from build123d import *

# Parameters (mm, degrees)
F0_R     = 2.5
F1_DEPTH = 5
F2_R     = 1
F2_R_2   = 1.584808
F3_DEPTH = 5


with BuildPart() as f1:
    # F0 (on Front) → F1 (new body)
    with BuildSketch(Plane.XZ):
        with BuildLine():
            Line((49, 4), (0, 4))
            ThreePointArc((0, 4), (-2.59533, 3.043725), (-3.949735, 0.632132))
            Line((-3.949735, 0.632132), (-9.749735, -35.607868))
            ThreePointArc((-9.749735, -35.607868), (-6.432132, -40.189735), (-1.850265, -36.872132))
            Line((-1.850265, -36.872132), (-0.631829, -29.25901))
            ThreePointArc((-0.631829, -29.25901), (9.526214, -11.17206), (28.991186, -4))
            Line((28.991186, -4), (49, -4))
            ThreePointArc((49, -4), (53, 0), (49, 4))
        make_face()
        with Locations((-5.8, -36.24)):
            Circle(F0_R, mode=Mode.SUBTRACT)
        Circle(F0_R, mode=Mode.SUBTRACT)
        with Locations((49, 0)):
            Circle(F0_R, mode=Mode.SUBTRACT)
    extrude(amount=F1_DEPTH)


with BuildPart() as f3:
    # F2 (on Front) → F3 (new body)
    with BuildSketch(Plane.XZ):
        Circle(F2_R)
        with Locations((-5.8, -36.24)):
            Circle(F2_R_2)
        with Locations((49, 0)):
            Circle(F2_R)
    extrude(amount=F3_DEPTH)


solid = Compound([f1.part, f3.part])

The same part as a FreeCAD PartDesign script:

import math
import FreeCAD as App
import Part
import Sketcher
from FreeCAD import Vector

doc = App.newDocument("Part")
body = doc.addObject("PartDesign::Body", "Body")

# Sketch on XZ plane
sketch1 = body.newObject("Sketcher::SketchObject", "Sketch")
sketch1.AttachmentSupport = (doc.getObject("XZ_Plane"), [""])
sketch1.MapMode = "FlatFace"
sketch1.addGeometry([
    Part.LineSegment(Vector(49, 4, 0), Vector(0, 4, 0)),  # 0
    Part.ArcOfCircle(Part.Circle(Vector(0, 0, 0), Vector(0, 0, 1), 4), math.radians(90), math.radians(171)),  # 1
    Part.LineSegment(Vector(-3.9, 0.6, 0), Vector(-9.7, -35.6, 0)),  # 2
    Part.ArcOfCircle(Part.Circle(Vector(-5.8, -36.2, 0), Vector(0, 0, 1), 4), math.radians(171), math.radians(351)),  # 3
    Part.LineSegment(Vector(-1.9, -36.9, 0), Vector(-0.6, -29.3, 0)),  # 4
    Part.ArcOfCircle(Part.Circle(Vector(29, -34, 0), Vector(0, 0, 1), 30), math.radians(90), math.radians(171)),  # 5
    Part.LineSegment(Vector(29, -4, 0), Vector(49, -4, 0)),  # 6
    Part.ArcOfCircle(Part.Circle(Vector(49, 0, 0), Vector(0, 0, 1), 4), math.radians(-90), math.radians(90)),  # 7
    Part.Circle(Vector(-5.8, -36.2, 0), Vector(0, 0, 1), 2.5),  # 8
    Part.Circle(Vector(0, 0, 0), Vector(0, 0, 1), 2.5),  # 9
    Part.Circle(Vector(49, 0, 0), Vector(0, 0, 1), 2.5),  # 10
], False)
sketch1.addConstraint([
    Sketcher.Constraint("Tangent", 0, 2, 1, 1),
    Sketcher.Constraint("Tangent", 1, 2, 2, 1),
    Sketcher.Constraint("Tangent", 2, 2, 3, 1),
    Sketcher.Constraint("Tangent", 3, 2, 4, 1),
    Sketcher.Constraint("Tangent", 4, 2, 5, 2),
    Sketcher.Constraint("Tangent", 5, 1, 6, 1),
    Sketcher.Constraint("Tangent", 6, 2, 7, 1),
    Sketcher.Constraint("Tangent", 7, 2, 0, 1),
    Sketcher.Constraint("Horizontal", 0),
    Sketcher.Constraint("Horizontal", 6),
    Sketcher.Constraint("Coincident", 1, 3, -1, 1),
    Sketcher.Constraint("Coincident", 9, 3, -1, 1),
    Sketcher.Constraint("Coincident", 8, 3, 3, 3),
    Sketcher.Constraint("Coincident", 10, 3, 7, 3),
    Sketcher.Constraint("Equal", 1, 3),
    Sketcher.Constraint("Equal", 3, 7),
    Sketcher.Constraint("Equal", 8, 9),
    Sketcher.Constraint("Equal", 9, 10),
    Sketcher.Constraint("Parallel", 2, 4),
    Sketcher.Constraint("Diameter", 8, 5.0),
    Sketcher.Constraint("Radius", 1, 3.999999),
    Sketcher.Constraint("Radius", 5, 30.000001),
    Sketcher.Constraint("DistanceX", 0, 2, 0, 1, 49.0),
    Sketcher.Constraint("DistanceX", 3, 3, -1, 1, 5.8),
    Sketcher.Constraint("DistanceY", 3, 3, -1, 1, 36.24),
])
pad1 = body.newObject("PartDesign::Pad", "Pad")
pad1.Profile = sketch1
pad1.Length = 5
body2 = doc.addObject("PartDesign::Body", "Body001")
body2.AllowCompound = True

# Sketch on XZ plane
sketch2 = body2.newObject("Sketcher::SketchObject", "Sketch001")
sketch2.AttachmentSupport = (doc.getObject("XZ_Plane001"), [""])
sketch2.MapMode = "FlatFace"
sketch2.addGeometry([
    Part.Circle(Vector(0, 0, 0), Vector(0, 0, 1), 1),
    Part.Circle(Vector(-5.8, -36.2, 0), Vector(0, 0, 1), 1.6),
    Part.Circle(Vector(49, 0, 0), Vector(0, 0, 1), 1),
], False)
sketch2.addConstraint([
    Sketcher.Constraint("Coincident", 0, 3, -1, 1),
    Sketcher.Constraint("Equal", 0, 2),
    Sketcher.Constraint("PointOnObject", 2, 3, -1),
    Sketcher.Constraint("Diameter", 0, 2.0),
    Sketcher.Constraint("DistanceX", -1, 1, 2, 3, 49.0),
    Sketcher.Constraint("DistanceX", 1, 3, -1, 1, 5.8),
    Sketcher.Constraint("DistanceY", 1, 3, -1, 1, 36.24),
    Sketcher.Constraint("Diameter", 1, 3.169616),
])
pad2 = body2.newObject("PartDesign::Pad", "Pad001")
pad2.Profile = sketch2
pad2.Length = 5

doc.recompute()
